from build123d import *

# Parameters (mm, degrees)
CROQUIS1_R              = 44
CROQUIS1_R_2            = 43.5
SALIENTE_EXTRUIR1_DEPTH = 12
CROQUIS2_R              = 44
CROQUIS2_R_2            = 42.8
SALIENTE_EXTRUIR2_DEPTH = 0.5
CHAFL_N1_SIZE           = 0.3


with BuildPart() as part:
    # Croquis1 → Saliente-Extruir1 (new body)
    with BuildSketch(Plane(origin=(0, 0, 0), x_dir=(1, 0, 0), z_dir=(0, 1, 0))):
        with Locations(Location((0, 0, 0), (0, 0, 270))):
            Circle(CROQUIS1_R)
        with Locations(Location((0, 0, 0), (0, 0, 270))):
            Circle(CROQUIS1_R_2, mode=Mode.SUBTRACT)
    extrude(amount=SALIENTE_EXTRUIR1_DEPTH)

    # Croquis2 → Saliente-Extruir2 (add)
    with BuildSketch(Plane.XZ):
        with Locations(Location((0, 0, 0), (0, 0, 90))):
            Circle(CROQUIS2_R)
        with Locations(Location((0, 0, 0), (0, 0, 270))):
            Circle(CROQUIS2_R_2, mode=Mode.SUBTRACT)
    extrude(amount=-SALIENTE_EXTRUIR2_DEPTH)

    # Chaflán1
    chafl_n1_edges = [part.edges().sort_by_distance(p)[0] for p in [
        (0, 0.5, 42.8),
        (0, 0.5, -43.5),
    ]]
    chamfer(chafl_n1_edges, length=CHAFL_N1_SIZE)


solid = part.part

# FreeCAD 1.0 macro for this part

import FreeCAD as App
import Part
import Sketcher
from FreeCAD import Vector


def edges_at(feature, points):
    """Names of the edges that pass closest to the given points."""
    edges = feature.Shape.Edges
    near = lambda p: min(range(len(edges)), key=lambda i: edges[i].distToShape(Part.Vertex(*p))[0])
    return sorted({f"Edge{near(p) + 1}" for p in points})

doc = App.newDocument("Part")
params = doc.addObject("Spreadsheet::Sheet", "Params")
for row, (alias, value) in enumerate([
    ("sketch1_diameter", "88 mm"),
    ("sketch1_diameter2", "87 mm"),
    ("pad1_length", "12 mm"),
    ("sketch2_diameter", "88 mm"),
    ("sketch2_diameter2", "85.6 mm"),
    ("pad2_length", "0.5 mm"),
    ("chamfer_size", "0.3 mm"),
], start=1):
    params.set(f"A{row}", alias)
    params.set(f"B{row}", "=" + value)
    params.setAlias(f"B{row}", alias)

body = doc.addObject("PartDesign::Body", "Body")

sketch1 = doc.addObject("Sketcher::SketchObject", "Sketch")
body.addObject(sketch1)
sketch1.AttachmentSupport = (doc.XZ_Plane, [""])
sketch1.MapMode = "FlatFace"
sketch1.addGeometry([
    Part.Circle(Vector(0, 0, 0), Vector(0, 0, 1), 44),
    Part.Circle(Vector(0, 0, 0), Vector(0, 0, 1), 44),
], False)
sketch1.addConstraint([
    Sketcher.Constraint("Coincident", 0, 3, -1, 1),
    Sketcher.Constraint("Coincident", 1, 3, -1, 1),
    Sketcher.Constraint("Diameter", 0, 88.0),
    Sketcher.Constraint("Diameter", 1, 87.0),
])
sketch1.setExpression("Constraints[2]", "Params.sketch1_diameter")
sketch1.setExpression("Constraints[3]", "Params.sketch1_diameter2")
pad1 = doc.addObject("PartDesign::Pad", "Pad")
body.addObject(pad1)
pad1.Profile = sketch1
pad1.setExpression("Length", "Params.pad1_length")
pad1.Reversed = True

sketch2 = doc.addObject("Sketcher::SketchObject", "Sketch001")
body.addObject(sketch2)
sketch2.AttachmentSupport = (doc.XZ_Plane, [""])
sketch2.MapMode = "FlatFace"
sketch2.addGeometry([
    Part.Circle(Vector(0, 0, 0), Vector(0, 0, 1), 44),
    Part.Circle(Vector(0, 0, 0), Vector(0, 0, 1), 43),
], False)
sketch2.addConstraint([
    Sketcher.Constraint("Coincident", 0, 3, -1, 1),
    Sketcher.Constraint("Coincident", 1, 3, -1, 1),
    Sketcher.Constraint("Diameter", 0, 88.0),
    Sketcher.Constraint("Diameter", 1, 85.6),
])
sketch2.setExpression("Constraints[2]", "Params.sketch2_diameter")
sketch2.setExpression("Constraints[3]", "Params.sketch2_diameter2")
pad2 = doc.addObject("PartDesign::Pad", "Pad001")
body.addObject(pad2)
pad2.Profile = sketch2
pad2.setExpression("Length", "Params.pad2_length")
pad2.Reversed = True
doc.recompute()

chamfer = doc.addObject("PartDesign::Chamfer", "Chamfer")
body.addObject(chamfer)
chamfer.Base = (pad2, edges_at(pad2, [(0, 0.5, 42.8), (0, 0.5, -43.5)]))
chamfer.setExpression("Size", "Params.chamfer_size")

doc.recompute()
